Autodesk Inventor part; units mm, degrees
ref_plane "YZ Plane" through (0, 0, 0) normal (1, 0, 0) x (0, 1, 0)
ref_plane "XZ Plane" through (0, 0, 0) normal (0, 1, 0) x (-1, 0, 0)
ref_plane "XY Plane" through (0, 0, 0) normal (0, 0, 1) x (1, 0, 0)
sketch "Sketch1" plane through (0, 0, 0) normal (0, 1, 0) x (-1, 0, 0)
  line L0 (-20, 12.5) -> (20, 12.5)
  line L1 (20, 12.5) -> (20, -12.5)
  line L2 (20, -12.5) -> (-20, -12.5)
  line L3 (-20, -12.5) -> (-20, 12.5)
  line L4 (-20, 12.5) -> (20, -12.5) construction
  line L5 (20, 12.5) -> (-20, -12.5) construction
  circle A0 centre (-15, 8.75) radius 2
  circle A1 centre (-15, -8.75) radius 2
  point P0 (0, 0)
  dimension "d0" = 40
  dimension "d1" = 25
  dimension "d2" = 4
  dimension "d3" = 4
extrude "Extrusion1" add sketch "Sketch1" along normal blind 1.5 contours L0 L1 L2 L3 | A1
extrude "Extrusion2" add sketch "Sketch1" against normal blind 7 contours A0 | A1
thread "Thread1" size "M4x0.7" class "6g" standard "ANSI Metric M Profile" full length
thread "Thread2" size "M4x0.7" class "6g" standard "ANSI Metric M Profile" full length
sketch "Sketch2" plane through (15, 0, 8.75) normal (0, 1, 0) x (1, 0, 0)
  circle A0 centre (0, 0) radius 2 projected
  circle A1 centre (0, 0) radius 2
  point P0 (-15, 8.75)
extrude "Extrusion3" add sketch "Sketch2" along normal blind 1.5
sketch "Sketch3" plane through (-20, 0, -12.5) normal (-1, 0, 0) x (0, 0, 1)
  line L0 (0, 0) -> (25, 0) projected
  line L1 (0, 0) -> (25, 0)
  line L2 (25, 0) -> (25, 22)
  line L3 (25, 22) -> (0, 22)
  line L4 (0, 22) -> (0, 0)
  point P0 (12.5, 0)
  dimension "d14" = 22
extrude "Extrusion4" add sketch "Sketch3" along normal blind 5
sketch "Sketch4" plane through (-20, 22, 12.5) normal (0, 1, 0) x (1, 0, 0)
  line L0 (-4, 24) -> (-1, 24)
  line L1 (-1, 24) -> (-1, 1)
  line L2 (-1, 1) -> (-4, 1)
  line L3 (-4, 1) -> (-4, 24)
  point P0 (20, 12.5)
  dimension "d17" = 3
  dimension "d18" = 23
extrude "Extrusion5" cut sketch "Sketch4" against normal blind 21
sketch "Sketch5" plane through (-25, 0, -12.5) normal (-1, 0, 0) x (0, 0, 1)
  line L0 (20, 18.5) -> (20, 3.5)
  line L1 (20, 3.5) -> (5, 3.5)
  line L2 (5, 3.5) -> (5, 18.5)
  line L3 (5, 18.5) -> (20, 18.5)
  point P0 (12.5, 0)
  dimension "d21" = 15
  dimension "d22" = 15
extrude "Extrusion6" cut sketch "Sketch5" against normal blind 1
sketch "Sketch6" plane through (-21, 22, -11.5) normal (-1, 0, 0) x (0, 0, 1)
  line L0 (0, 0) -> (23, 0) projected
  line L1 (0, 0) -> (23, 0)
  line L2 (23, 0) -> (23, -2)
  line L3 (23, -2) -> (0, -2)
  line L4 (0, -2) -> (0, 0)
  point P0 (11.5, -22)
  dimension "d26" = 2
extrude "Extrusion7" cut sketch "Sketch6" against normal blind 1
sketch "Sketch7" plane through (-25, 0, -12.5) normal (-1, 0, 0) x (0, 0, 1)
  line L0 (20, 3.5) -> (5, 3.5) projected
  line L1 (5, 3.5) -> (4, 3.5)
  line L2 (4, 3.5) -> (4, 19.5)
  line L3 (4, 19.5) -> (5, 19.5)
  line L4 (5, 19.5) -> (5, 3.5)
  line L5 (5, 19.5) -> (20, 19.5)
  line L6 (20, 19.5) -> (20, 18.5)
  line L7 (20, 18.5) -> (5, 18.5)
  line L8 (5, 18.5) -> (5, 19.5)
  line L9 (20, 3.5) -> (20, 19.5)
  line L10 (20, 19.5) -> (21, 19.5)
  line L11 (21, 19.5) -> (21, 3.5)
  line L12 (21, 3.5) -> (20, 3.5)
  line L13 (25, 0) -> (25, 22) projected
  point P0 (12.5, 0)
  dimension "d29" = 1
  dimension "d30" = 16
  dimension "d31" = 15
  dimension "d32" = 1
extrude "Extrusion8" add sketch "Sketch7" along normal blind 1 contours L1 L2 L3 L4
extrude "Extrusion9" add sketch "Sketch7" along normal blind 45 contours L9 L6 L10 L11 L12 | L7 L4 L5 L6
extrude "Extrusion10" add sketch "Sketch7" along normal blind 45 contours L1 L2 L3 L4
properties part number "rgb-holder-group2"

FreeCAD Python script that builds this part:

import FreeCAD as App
import Part
import Sketcher
Q = App.Units.Quantity

doc = App.newDocument("Part")
body = doc.addObject("PartDesign::Body", "Body")
body.AllowCompound = True

# Sketch on XZ plane
sketch1 = body.newObject("Sketcher::SketchObject", "Sketch")
sketch1.AttachmentSupport = (doc.getObject("XZ_Plane"), [""])
sketch1.MapMode = "FlatFace"
sketch1.addGeometry([
    Part.LineSegment(App.Vector(-20, 12.5, 0), App.Vector(20, 12.5, 0)),  # 0
    Part.LineSegment(App.Vector(20, 12.5, 0), App.Vector(20, -12.5, 0)),  # 1
    Part.LineSegment(App.Vector(20, -12.5, 0), App.Vector(-20, -12.5, 0)),  # 2
    Part.LineSegment(App.Vector(-20, -12.5, 0), App.Vector(-20, 12.5, 0)),  # 3
    Part.Circle(App.Vector(15, 8.8, 0), App.Vector(0, 0, 1), 2),  # 4
], False)
sketch1.addConstraint([
    Sketcher.Constraint("Coincident", 0, 2, 1, 1),
    Sketcher.Constraint("Coincident", 1, 2, 2, 1),
    Sketcher.Constraint("Coincident", 2, 2, 3, 1),
    Sketcher.Constraint("Coincident", 3, 2, 0, 1),
    Sketcher.Constraint("Horizontal", 0),
    Sketcher.Constraint("Vertical", 1),
    Sketcher.Constraint("Horizontal", 2),
    Sketcher.Constraint("Vertical", 3),
    Sketcher.Constraint("Symmetric", 0, 2, 2, 2, -1, 1),
    Sketcher.Constraint("Diameter", 4, Q("4 mm")),
    Sketcher.Constraint("DistanceX", 0, 1, 0, 2, Q("40 mm")),
    Sketcher.Constraint("DistanceY", 1, 2, 1, 1, Q("25 mm")),
    Sketcher.Constraint("DistanceX", -1, 1, 4, 3, Q("15 mm")),
    Sketcher.Constraint("DistanceY", -1, 1, 4, 3, Q("8.75 mm")),
])
pad1 = body.newObject("PartDesign::Pad", "Pad")
pad1.Profile = sketch1
pad1.Length = 1.5
pad1.Reversed = True

# Sketch on XZ plane
sketch2 = body.newObject("Sketcher::SketchObject", "Sketch001")
sketch2.AttachmentSupport = (doc.getObject("XZ_Plane"), [""])
sketch2.MapMode = "FlatFace"
sketch2.addGeometry([
    Part.Circle(App.Vector(15, 8.8, 0), App.Vector(0, 0, 1), 2),
    Part.Circle(App.Vector(15, -8.8, 0), App.Vector(0, 0, 1), 2),
], False)
sketch2.addConstraint([
    Sketcher.Constraint("Equal", 0, 1),
    Sketcher.Constraint("Symmetric", 0, 3, 1, 3, -1),
    Sketcher.Constraint("Diameter", 0, Q("4 mm")),
    Sketcher.Constraint("DistanceX", -1, 1, 0, 3, Q("15 mm")),
    Sketcher.Constraint("DistanceY", 1, 3, 0, 3, Q("17.5 mm")),
])
pad2 = body.newObject("PartDesign::Pad", "Pad001")
pad2.Profile = sketch2
pad2.Length = 7

# Sketch on XZ plane
sketch3 = body.newObject("Sketcher::SketchObject", "Sketch002")
sketch3.AttachmentSupport = (doc.getObject("XZ_Plane"), [""])
sketch3.MapMode = "FlatFace"
sketch3.addGeometry(Part.Circle(App.Vector(15, 8.8, 0), App.Vector(0, 0, 1), 2), False)
sketch3.addConstraint([
    Sketcher.Constraint("Diameter", 0, Q("4 mm")),
    Sketcher.Constraint("DistanceX", -1, 1, 0, 3, Q("15 mm")),
    Sketcher.Constraint("DistanceY", -1, 1, 0, 3, Q("8.75 mm")),
])
pad3 = body.newObject("PartDesign::Pad", "Pad002")
pad3.Profile = sketch3
pad3.Length = 1.5
pad3.Reversed = True

# Sketch on YZ plane
sketch4 = body.newObject("Sketcher::SketchObject", "Sketch003")
sketch4.AttachmentSupport = (doc.getObject("YZ_Plane"), [""])
sketch4.MapMode = "FlatFace"
sketch4.AttachmentOffset = App.Placement(App.Vector(0, 0, -20), App.Rotation())
sketch4.addGeometry([
    Part.LineSegment(App.Vector(22, -12, 0), App.Vector(0, -12, 0)),
    Part.LineSegment(App.Vector(0, -12, 0), App.Vector(0, 12, 0)),
    Part.LineSegment(App.Vector(0, 12, 0), App.Vector(22, 12, 0)),
    Part.LineSegment(App.Vector(22, 12, 0), App.Vector(22, -12, 0)),
], False)
sketch4.addConstraint([
    Sketcher.Constraint("Coincident", 0, 2, 1, 1),
    Sketcher.Constraint("Coincident", 1, 2, 2, 1),
    Sketcher.Constraint("Coincident", 2, 2, 3, 1),
    Sketcher.Constraint("Coincident", 3, 2, 0, 1),
    Sketcher.Constraint("Horizontal", 0),
    Sketcher.Constraint("Vertical", 1),
    Sketcher.Constraint("Horizontal", 2),
    Sketcher.Constraint("Vertical", 3),
    Sketcher.Constraint("Symmetric", 0, 2, 1, 2, -1, 1),
    Sketcher.Constraint("DistanceX", 0, 2, 0, 1, Q("22 mm")),
    Sketcher.Constraint("DistanceY", 1, 1, 1, 2, Q("25 mm")),
])
pad4 = body.newObject("PartDesign::Pad", "Pad003")
pad4.Profile = sketch4
pad4.Length = 5
pad4.Reversed = True

# Sketch on XZ plane
sketch5 = body.newObject("Sketcher::SketchObject", "Sketch004")
sketch5.AttachmentSupport = (doc.getObject("XZ_Plane"), [""])
sketch5.MapMode = "FlatFace"
sketch5.AttachmentOffset = App.Placement(App.Vector(0, 0, -22), App.Rotation())
sketch5.addGeometry([
    Part.LineSegment(App.Vector(-21, -11.5, 0), App.Vector(-24, -11.5, 0)),
    Part.LineSegment(App.Vector(-24, -11.5, 0), App.Vector(-24, 11.5, 0)),
    Part.LineSegment(App.Vector(-24, 11.5, 0), App.Vector(-21, 11.5, 0)),
    Part.LineSegment(App.Vector(-21, 11.5, 0), App.Vector(-21, -11.5, 0)),
], False)
sketch5.addConstraint([
    Sketcher.Constraint("Coincident", 0, 2, 1, 1),
    Sketcher.Constraint("Coincident", 1, 2, 2, 1),
    Sketcher.Constraint("Coincident", 2, 2, 3, 1),
    Sketcher.Constraint("Coincident", 3, 2, 0, 1),
    Sketcher.Constraint("Horizontal", 0),
    Sketcher.Constraint("Vertical", 1),
    Sketcher.Constraint("Horizontal", 2),
    Sketcher.Constraint("Vertical", 3),
    Sketcher.Constraint("DistanceX", 0, 2, 0, 1, Q("3 mm")),
    Sketcher.Constraint("DistanceY", 1, 1, 1, 2, Q("23 mm")),
    Sketcher.Constraint("DistanceX", 0, 2, -1, 1, Q("24 mm")),
    Sketcher.Constraint("DistanceY", 0, 2, -1, 1, Q("11.5 mm")),
])
pocket1 = body.newObject("PartDesign::Pocket", "Pocket")
pocket1.Profile = sketch5
pocket1.Length = 21
pocket1.Reversed = True

# Sketch on YZ plane
sketch6 = body.newObject("Sketcher::SketchObject", "Sketch005")
sketch6.AttachmentSupport = (doc.getObject("YZ_Plane"), [""])
sketch6.MapMode = "FlatFace"
sketch6.AttachmentOffset = App.Placement(App.Vector(0, 0, -25), App.Rotation())
sketch6.addGeometry([
    Part.LineSegment(App.Vector(4, 8, 0), App.Vector(18, 8, 0)),
    Part.LineSegment(App.Vector(18, 8, 0), App.Vector(18, -8, 0)),
    Part.LineSegment(App.Vector(18, -8, 0), App.Vector(4, -8, 0)),
    Part.LineSegment(App.Vector(4, -8, 0), App.Vector(4, 8, 0)),
], False)
sketch6.addConstraint([
    Sketcher.Constraint("Coincident", 0, 2, 1, 1),
    Sketcher.Constraint("Coincident", 1, 2, 2, 1),
    Sketcher.Constraint("Coincident", 2, 2, 3, 1),
    Sketcher.Constraint("Coincident", 3, 2, 0, 1),
    Sketcher.Constraint("Horizontal", 0),
    Sketcher.Constraint("Vertical", 1),
    Sketcher.Constraint("Horizontal", 2),
    Sketcher.Constraint("Vertical", 3),
    Sketcher.Constraint("Equal", 2, 1),
    Sketcher.Constraint("DistanceX", 0, 1, 0, 2, Q("15 mm")),
    Sketcher.Constraint("DistanceX", -1, 1, 0, 2, Q("18.5 mm")),
    Sketcher.Constraint("DistanceY", -1, 1, 0, 2, Q("7.5 mm")),
])
pocket2 = body.newObject("PartDesign::Pocket", "Pocket001")
pocket2.Profile = sketch6
pocket2.Length = 1
pocket2.Reversed = True

# Sketch on YZ plane
sketch7 = body.newObject("Sketcher::SketchObject", "Sketch006")
sketch7.AttachmentSupport = (doc.getObject("YZ_Plane"), [""])
sketch7.MapMode = "FlatFace"
sketch7.AttachmentOffset = App.Placement(App.Vector(0, 0, -21), App.Rotation())
sketch7.addGeometry([
    Part.LineSegment(App.Vector(22, 11.5, 0), App.Vector(22, -11.5, 0)),
    Part.LineSegment(App.Vector(22, -11.5, 0), App.Vector(20, -11.5, 0)),
    Part.LineSegment(App.Vector(20, -11.5, 0), App.Vector(20, 11.5, 0)),
    Part.LineSegment(App.Vector(20, 11.5, 0), App.Vector(22, 11.5, 0)),
], False)
sketch7.addConstraint([
    Sketcher.Constraint("Coincident", 0, 2, 1, 1),
    Sketcher.Constraint("Coincident", 1, 2, 2, 1),
    Sketcher.Constraint("Coincident", 2, 2, 3, 1),
    Sketcher.Constraint("Coincident", 3, 2, 0, 1),
    Sketcher.Constraint("Vertical", 0),
    Sketcher.Constraint("Horizontal", 1),
    Sketcher.Constraint("Vertical", 2),
    Sketcher.Constraint("Horizontal", 3),
    Sketcher.Constraint("DistanceX", 1, 2, 1, 1, Q("2 mm")),
    Sketcher.Constraint("DistanceY", 0, 2, 0, 1, Q("23 mm")),
    Sketcher.Constraint("DistanceX", -1, 1, 0, 2, Q("22 mm")),
    Sketcher.Constraint("DistanceY", 0, 2, -1, 1, Q("11.5 mm")),
])
pocket3 = body.newObject("PartDesign::Pocket", "Pocket002")
pocket3.Profile = sketch7
pocket3.Length = 1
pocket3.Reversed = True

# Sketch on YZ plane
sketch8 = body.newObject("Sketcher::SketchObject", "Sketch007")
sketch8.AttachmentSupport = (doc.getObject("YZ_Plane"), [""])
sketch8.MapMode = "FlatFace"
sketch8.AttachmentOffset = App.Placement(App.Vector(0, 0, -25), App.Rotation())
sketch8.addGeometry([
    Part.LineSegment(App.Vector(3.5, -8.5, 0), App.Vector(3.5, -7.5, 0)),
    Part.LineSegment(App.Vector(3.5, -7.5, 0), App.Vector(19.5, -7.5, 0)),
    Part.LineSegment(App.Vector(19.5, -7.5, 0), App.Vector(19.5, -8.5, 0)),
    Part.LineSegment(App.Vector(19.5, -8.5, 0), App.Vector(3.5, -8.5, 0)),
], False)
sketch8.addConstraint([
    Sketcher.Constraint("Coincident", 0, 2, 1, 1),
    Sketcher.Constraint("Coincident", 1, 2, 2, 1),
    Sketcher.Constraint("Coincident", 2, 2, 3, 1),
    Sketcher.Constraint("Coincident", 3, 2, 0, 1),
    Sketcher.Constraint("Vertical", 0),
    Sketcher.Constraint("Horizontal", 1),
    Sketcher.Constraint("Vertical", 2),
    Sketcher.Constraint("Horizontal", 3),
    Sketcher.Constraint("DistanceX", 1, 1, 1, 2, Q("16 mm")),
    Sketcher.Constraint("DistanceY", 0, 1, 0, 2, Q("1 mm")),
    Sketcher.Constraint("DistanceX", -1, 1, 0, 2, Q("3.5 mm")),
    Sketcher.Constraint("DistanceY", 0, 2, -1, 1, Q("7.5 mm")),
])
pad5 = body.newObject("PartDesign::Pad", "Pad004")
pad5.Profile = sketch8
pad5.Length = 1
pad5.Reversed = True

# Sketch on YZ plane
sketch9 = body.newObject("Sketcher::SketchObject", "Sketch008")
sketch9.AttachmentSupport = (doc.getObject("YZ_Plane"), [""])
sketch9.MapMode = "FlatFace"
sketch9.AttachmentOffset = App.Placement(App.Vector(0, 0, -25), App.Rotation())
sketch9.addGeometry([
    Part.LineSegment(App.Vector(18.5, 7.5, 0), App.Vector(3.5, 7.5, 0)),  # 0
    Part.LineSegment(App.Vector(3.5, 7.5, 0), App.Vector(3.5, 8.5, 0)),  # 1
    Part.LineSegment(App.Vector(3.5, 8.5, 0), App.Vector(19.5, 8.5, 0)),  # 2
    Part.LineSegment(App.Vector(19.5, 8.5, 0), App.Vector(19.5, -7.5, 0)),  # 3
    Part.LineSegment(App.Vector(19.5, -7.5, 0), App.Vector(18.5, -7.5, 0)),  # 4
    Part.LineSegment(App.Vector(18.5, -7.5, 0), App.Vector(18.5, 7.5, 0)),  # 5
], False)
sketch9.addConstraint([
    Sketcher.Constraint("Coincident", 0, 2, 1, 1),
    Sketcher.Constraint("Coincident", 1, 2, 2, 1),
    Sketcher.Constraint("Coincident", 2, 2, 3, 1),
    Sketcher.Constraint("Coincident", 3, 2, 4, 1),
    Sketcher.Constraint("Coincident", 4, 2, 5, 1),
    Sketcher.Constraint("Coincident", 5, 2, 0, 1),
    Sketcher.Constraint("Horizontal", 0),
    Sketcher.Constraint("Vertical", 1),
    Sketcher.Constraint("Horizontal", 2),
    Sketcher.Constraint("Vertical", 3),
    Sketcher.Constraint("Horizontal", 4),
    Sketcher.Constraint("Vertical", 5),
    Sketcher.Constraint("Equal", 4, 1),
    Sketcher.Constraint("Equal", 2, 3),
    Sketcher.Constraint("DistanceX", 0, 2, 0, 1, Q("15 mm")),
    Sketcher.Constraint("DistanceX", 2, 1, 2, 2, Q("16 mm")),
    Sketcher.Constraint("DistanceX", -1, 1, 0, 2, Q("3.5 mm")),
    Sketcher.Constraint("DistanceY", -1, 1, 0, 2, Q("7.5 mm")),
])
pad6 = body.newObject("PartDesign::Pad", "Pad005")
pad6.Profile = sketch9
pad6.Length = 45
pad6.Reversed = True

# Sketch on YZ plane
sketch10 = body.newObject("Sketcher::SketchObject", "Sketch009")
sketch10.AttachmentSupport = (doc.getObject("YZ_Plane"), [""])
sketch10.MapMode = "FlatFace"
sketch10.AttachmentOffset = App.Placement(App.Vector(0, 0, -25), App.Rotation())
sketch10.addGeometry([
    Part.LineSegment(App.Vector(3.5, -8.5, 0), App.Vector(3.5, -7.5, 0)),
    Part.LineSegment(App.Vector(3.5, -7.5, 0), App.Vector(19.5, -7.5, 0)),
    Part.LineSegment(App.Vector(19.5, -7.5, 0), App.Vector(19.5, -8.5, 0)),
    Part.LineSegment(App.Vector(19.5, -8.5, 0), App.Vector(3.5, -8.5, 0)),
], False)
sketch10.addConstraint([
    Sketcher.Constraint("Coincident", 0, 2, 1, 1),
    Sketcher.Constraint("Coincident", 1, 2, 2, 1),
    Sketcher.Constraint("Coincident", 2, 2, 3, 1),
    Sketcher.Constraint("Coincident", 3, 2, 0, 1),
    Sketcher.Constraint("Vertical", 0),
    Sketcher.Constraint("Horizontal", 1),
    Sketcher.Constraint("Vertical", 2),
    Sketcher.Constraint("Horizontal", 3),
    Sketcher.Constraint("DistanceX", 1, 1, 1, 2, Q("16 mm")),
    Sketcher.Constraint("DistanceY", 0, 1, 0, 2, Q("1 mm")),
    Sketcher.Constraint("DistanceX", -1, 1, 0, 2, Q("3.5 mm")),
    Sketcher.Constraint("DistanceY", 0, 2, -1, 1, Q("7.5 mm")),
])
pad7 = body.newObject("PartDesign::Pad", "Pad006")
pad7.Profile = sketch10
pad7.Length = 45
pad7.Reversed = True

doc.recompute()
